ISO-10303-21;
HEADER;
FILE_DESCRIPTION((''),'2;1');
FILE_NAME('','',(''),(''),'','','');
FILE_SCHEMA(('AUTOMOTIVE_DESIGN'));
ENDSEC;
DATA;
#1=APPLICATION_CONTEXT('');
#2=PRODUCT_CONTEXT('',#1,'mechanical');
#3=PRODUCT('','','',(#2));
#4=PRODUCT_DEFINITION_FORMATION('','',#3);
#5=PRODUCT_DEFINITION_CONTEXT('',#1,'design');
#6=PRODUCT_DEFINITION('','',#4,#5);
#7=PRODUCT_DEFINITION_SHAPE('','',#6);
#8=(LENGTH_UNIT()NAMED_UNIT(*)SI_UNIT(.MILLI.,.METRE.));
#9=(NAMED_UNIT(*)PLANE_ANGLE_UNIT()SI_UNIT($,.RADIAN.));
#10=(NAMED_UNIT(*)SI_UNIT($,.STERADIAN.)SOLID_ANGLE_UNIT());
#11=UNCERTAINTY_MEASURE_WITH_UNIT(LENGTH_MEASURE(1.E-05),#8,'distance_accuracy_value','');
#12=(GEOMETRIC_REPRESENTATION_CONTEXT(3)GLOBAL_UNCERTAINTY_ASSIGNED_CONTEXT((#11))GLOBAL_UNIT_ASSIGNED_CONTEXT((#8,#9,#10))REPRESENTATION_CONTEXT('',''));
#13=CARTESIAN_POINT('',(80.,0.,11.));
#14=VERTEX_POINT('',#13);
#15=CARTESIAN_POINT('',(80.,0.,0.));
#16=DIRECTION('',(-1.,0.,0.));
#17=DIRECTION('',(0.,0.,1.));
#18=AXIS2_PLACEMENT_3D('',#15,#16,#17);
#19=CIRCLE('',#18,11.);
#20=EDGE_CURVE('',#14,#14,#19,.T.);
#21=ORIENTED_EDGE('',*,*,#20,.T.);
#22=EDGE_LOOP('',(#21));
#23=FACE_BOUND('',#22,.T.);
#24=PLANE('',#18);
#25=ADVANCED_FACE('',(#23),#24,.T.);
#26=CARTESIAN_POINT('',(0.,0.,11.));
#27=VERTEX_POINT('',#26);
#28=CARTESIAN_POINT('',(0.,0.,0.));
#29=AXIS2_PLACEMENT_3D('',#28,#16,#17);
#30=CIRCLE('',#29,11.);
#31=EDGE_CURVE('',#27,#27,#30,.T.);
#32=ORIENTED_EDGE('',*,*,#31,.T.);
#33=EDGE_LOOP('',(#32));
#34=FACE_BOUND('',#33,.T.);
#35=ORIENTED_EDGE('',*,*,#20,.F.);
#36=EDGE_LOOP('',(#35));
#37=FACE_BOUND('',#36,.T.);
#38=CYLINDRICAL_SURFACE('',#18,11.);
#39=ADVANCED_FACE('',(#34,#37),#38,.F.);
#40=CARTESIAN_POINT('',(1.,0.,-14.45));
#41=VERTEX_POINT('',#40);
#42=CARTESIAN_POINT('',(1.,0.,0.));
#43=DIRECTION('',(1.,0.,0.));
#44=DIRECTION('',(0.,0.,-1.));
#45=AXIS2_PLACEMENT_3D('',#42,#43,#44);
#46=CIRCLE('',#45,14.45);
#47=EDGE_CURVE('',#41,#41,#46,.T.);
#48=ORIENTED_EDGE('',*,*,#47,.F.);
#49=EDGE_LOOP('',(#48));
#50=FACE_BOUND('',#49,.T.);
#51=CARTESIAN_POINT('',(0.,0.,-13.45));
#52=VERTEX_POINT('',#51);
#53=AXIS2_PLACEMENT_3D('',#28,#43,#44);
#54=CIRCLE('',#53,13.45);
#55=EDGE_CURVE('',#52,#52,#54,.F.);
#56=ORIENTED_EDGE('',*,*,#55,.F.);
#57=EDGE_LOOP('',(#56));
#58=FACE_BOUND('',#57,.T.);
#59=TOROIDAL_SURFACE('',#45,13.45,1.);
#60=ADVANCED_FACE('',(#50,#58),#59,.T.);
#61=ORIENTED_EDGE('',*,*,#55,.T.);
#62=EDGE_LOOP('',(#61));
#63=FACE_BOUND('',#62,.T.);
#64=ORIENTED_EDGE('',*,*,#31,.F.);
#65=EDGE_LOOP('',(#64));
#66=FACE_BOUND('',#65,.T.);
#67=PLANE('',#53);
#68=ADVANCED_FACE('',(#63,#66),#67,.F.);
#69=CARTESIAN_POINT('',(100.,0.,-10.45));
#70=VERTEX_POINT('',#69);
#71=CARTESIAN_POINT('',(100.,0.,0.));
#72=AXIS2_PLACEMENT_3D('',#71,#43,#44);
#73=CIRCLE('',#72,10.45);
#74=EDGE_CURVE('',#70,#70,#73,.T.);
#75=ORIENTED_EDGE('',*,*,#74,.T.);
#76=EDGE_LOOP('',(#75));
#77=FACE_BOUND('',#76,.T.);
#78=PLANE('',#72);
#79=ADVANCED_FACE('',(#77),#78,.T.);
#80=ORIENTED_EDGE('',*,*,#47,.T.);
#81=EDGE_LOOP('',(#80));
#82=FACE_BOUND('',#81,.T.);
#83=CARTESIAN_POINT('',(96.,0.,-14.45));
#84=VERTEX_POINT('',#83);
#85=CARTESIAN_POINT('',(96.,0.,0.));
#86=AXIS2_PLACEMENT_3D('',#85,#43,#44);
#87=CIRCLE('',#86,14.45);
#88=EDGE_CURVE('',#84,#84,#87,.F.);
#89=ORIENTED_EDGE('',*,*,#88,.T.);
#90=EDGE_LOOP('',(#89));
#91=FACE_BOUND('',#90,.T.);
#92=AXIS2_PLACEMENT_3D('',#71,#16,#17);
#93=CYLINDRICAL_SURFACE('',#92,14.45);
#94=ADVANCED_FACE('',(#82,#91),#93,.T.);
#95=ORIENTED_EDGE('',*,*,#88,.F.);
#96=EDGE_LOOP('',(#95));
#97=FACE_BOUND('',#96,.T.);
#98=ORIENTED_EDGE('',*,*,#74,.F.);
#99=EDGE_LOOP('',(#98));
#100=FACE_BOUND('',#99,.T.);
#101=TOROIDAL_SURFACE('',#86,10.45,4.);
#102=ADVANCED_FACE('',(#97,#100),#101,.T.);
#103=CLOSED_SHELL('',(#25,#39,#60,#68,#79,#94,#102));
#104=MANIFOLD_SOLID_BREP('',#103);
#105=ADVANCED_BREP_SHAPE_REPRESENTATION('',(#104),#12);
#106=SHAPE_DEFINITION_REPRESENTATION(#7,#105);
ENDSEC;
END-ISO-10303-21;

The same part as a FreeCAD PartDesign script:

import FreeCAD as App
import Part
import Sketcher

V = App.Vector


def edges_at(feature, points):
    """Names of the edges that pass closest to the given points."""
    edges = feature.Shape.Edges
    near = lambda p: min(range(len(edges)), key=lambda i: edges[i].distToShape(Part.Vertex(*p))[0])
    return sorted({f"Edge{near(p) + 1}" for p in points})

doc = App.newDocument("Part")
params = doc.addObject("Spreadsheet::Sheet", "Params")
for row, (alias, value) in enumerate([
    ("sketch1_diameter", "28.9 mm"),
    ("pad1_length", "100 mm"),
    ("fillet_radius", "4 mm"),
    ("sketch2_diameter", "22 mm"),
    ("pocket1_length", "80 mm"),
    ("fillet2_radius", "1 mm"),
], start=1):
    params.set(f"A{row}", alias)
    params.set(f"B{row}", "=" + value)
    params.setAlias(f"B{row}", alias)

body = doc.addObject("PartDesign::Body", "Body")

sketch1 = body.newObject("Sketcher::SketchObject", "Sketch")
sketch1.AttachmentSupport = (doc.getObject("YZ_Plane"), [""])
sketch1.MapMode = "FlatFace"
sketch1.addGeometry(Part.Circle(V(0, 0, 0), V(0, 0, 1), 14.45), False)
sketch1.addConstraint(Sketcher.Constraint("Coincident", 0, 3, -1, 1))
sketch1.addConstraint(Sketcher.Constraint("Diameter", 0, 28.9))
sketch1.setExpression("Constraints[1]", "Params.sketch1_diameter")
pad1 = body.newObject("PartDesign::Pad", "Pad")
pad1.Profile = sketch1
pad1.setExpression("Length", "Params.pad1_length")
doc.recompute()

fillet = body.newObject("PartDesign::Fillet", "Fillet")
fillet.Base = (pad1, edges_at(pad1, [(100, 0, 14.45)]))
fillet.setExpression("Radius", "Params.fillet_radius")

sketch2 = body.newObject("Sketcher::SketchObject", "Sketch001")
sketch2.AttachmentSupport = (doc.getObject("YZ_Plane"), [""])
sketch2.MapMode = "FlatFace"
sketch2.addGeometry(Part.Circle(V(0, 0, 0), V(0, 0, 1), 11), False)
sketch2.addConstraint(Sketcher.Constraint("Coincident", 0, 3, -1, 1))
sketch2.addConstraint(Sketcher.Constraint("Diameter", 0, 22.0))
sketch2.setExpression("Constraints[1]", "Params.sketch2_diameter")
pocket1 = body.newObject("PartDesign::Pocket", "Pocket")
pocket1.Profile = sketch2
pocket1.setExpression("Length", "Params.pocket1_length")
pocket1.Reversed = True
doc.recompute()

fillet2 = body.newObject("PartDesign::Fillet", "Fillet001")
fillet2.Base = (pocket1, edges_at(pocket1, [(0, 0, 14.45)]))
fillet2.setExpression("Radius", "Params.fillet2_radius")

doc.recompute()
